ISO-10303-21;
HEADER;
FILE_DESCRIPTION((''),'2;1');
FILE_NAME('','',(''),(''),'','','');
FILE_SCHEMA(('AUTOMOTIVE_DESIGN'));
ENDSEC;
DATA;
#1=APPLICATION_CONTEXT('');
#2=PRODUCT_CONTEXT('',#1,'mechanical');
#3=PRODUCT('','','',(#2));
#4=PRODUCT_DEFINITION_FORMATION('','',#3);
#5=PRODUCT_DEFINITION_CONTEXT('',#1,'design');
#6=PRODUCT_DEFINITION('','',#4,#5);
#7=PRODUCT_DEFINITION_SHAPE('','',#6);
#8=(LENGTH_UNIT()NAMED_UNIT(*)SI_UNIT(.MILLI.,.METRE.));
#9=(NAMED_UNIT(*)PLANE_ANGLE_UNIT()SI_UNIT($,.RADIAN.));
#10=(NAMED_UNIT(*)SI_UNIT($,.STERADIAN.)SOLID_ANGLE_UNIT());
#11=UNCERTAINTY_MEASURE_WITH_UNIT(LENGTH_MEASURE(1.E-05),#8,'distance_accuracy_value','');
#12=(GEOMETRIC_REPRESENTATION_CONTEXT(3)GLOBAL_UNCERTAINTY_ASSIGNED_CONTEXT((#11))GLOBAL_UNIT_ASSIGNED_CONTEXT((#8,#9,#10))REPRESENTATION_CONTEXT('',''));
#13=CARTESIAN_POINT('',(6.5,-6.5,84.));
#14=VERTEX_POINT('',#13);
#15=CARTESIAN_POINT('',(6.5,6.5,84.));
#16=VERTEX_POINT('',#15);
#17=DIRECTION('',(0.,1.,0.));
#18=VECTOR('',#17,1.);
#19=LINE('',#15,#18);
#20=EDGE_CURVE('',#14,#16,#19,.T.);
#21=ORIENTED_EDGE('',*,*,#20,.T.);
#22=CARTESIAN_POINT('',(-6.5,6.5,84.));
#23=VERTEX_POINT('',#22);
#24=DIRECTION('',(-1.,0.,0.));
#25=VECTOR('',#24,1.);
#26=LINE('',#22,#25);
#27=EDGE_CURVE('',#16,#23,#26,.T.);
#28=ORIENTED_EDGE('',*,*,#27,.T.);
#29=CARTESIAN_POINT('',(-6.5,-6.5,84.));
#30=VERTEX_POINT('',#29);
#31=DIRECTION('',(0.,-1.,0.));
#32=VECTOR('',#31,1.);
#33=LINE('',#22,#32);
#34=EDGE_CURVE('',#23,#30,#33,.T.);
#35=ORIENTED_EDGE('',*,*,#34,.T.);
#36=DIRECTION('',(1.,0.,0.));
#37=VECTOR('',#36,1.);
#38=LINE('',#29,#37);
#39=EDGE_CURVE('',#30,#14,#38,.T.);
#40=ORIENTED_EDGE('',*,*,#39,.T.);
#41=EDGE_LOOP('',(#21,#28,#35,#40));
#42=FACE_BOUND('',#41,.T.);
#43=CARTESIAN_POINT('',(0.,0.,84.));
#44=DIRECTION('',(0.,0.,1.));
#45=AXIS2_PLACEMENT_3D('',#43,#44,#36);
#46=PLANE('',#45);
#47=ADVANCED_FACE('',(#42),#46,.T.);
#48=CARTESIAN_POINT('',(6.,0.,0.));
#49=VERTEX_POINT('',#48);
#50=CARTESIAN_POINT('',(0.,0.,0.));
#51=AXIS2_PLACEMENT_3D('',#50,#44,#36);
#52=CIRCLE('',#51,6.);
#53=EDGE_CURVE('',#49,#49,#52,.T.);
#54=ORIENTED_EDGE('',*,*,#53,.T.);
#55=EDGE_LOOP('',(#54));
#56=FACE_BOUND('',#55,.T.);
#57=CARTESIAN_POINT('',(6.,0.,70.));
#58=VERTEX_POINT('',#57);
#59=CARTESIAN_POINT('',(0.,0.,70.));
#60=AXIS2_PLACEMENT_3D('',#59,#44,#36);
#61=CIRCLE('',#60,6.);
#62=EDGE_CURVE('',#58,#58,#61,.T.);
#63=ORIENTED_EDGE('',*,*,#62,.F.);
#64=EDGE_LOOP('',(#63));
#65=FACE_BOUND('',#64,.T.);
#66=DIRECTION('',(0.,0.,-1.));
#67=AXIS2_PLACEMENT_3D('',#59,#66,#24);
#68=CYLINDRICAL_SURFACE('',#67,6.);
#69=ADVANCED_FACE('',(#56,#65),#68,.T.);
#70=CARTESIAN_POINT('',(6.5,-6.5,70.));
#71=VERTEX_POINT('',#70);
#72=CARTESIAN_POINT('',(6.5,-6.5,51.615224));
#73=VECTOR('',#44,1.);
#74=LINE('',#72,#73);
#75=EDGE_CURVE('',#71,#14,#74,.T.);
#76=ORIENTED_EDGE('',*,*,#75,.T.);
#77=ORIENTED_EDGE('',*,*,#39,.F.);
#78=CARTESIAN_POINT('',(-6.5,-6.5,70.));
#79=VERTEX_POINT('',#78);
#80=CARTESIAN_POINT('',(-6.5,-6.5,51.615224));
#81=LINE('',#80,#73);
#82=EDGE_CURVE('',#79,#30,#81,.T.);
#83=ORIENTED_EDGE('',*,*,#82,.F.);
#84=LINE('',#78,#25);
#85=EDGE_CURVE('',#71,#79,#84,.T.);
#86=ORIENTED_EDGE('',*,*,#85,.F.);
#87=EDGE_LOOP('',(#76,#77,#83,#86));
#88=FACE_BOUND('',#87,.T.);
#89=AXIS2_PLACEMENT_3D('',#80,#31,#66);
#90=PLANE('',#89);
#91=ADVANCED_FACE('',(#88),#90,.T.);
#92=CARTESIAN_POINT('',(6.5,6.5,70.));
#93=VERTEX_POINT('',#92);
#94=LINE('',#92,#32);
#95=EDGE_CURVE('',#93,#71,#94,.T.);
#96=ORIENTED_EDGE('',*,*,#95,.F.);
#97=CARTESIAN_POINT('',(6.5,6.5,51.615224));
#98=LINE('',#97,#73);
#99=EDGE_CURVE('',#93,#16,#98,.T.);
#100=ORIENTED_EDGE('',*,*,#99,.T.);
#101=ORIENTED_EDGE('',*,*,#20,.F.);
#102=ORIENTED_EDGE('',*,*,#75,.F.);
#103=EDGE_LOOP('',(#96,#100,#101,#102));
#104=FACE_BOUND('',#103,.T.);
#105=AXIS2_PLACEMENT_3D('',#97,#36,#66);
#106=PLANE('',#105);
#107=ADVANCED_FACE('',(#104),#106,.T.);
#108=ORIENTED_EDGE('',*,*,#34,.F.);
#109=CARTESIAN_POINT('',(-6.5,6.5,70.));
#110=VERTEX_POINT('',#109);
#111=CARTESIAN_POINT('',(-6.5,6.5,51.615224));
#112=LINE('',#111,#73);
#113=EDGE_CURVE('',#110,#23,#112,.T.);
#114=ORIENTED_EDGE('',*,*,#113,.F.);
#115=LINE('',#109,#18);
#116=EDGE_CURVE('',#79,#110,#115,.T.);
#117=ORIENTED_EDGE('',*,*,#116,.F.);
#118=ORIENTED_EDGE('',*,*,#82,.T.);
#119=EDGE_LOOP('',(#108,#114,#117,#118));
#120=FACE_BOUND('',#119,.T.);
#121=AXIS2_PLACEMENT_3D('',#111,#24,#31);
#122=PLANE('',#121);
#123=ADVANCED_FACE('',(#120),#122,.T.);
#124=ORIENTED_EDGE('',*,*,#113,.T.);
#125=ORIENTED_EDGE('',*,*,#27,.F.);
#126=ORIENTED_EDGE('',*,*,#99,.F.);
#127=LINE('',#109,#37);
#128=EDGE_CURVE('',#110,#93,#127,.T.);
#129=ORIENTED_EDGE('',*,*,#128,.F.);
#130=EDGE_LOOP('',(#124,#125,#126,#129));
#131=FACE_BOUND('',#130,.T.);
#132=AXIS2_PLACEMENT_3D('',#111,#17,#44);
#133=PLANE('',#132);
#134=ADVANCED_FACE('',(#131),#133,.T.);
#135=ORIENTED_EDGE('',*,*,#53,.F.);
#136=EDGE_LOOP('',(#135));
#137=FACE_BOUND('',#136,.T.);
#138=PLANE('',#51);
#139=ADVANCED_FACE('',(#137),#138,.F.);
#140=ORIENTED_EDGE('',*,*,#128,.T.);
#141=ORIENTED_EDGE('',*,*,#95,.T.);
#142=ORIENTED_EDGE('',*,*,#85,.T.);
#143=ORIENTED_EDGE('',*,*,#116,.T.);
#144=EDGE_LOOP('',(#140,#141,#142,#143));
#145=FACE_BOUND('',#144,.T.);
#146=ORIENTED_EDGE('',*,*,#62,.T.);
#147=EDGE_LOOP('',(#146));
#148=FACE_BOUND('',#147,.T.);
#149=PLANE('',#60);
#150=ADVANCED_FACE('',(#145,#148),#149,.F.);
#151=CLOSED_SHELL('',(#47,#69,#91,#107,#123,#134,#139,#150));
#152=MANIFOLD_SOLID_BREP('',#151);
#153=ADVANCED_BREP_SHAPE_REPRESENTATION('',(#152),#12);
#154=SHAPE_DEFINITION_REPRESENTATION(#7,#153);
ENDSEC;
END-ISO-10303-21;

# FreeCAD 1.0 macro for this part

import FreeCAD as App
import Part
import Sketcher
Q = App.Units.Quantity

doc = App.newDocument("Part")
params = doc.addObject("Spreadsheet::Sheet", "Params")
for row, (alias, value) in enumerate([
    ("sketch1_diameter", "12 mm"),
    ("pad1_length", "70 mm"),
    ("sketch2_width", "13 mm"),
    ("pad2_length", "14 mm"),
], start=1):
    params.set(f"A{row}", alias)
    params.set(f"B{row}", "=" + value)
    params.setAlias(f"B{row}", alias)

body = doc.addObject("PartDesign::Body", "Body")

sketch1 = doc.addObject("Sketcher::SketchObject", "Sketch")
body.addObject(sketch1)
sketch1.AttachmentSupport = (doc.XY_Plane, [""])
sketch1.MapMode = "FlatFace"
sketch1.addGeometry(Part.Circle(App.Vector(0, 0, 0), App.Vector(0, 0, 1), 6), False)
sketch1.addConstraint(Sketcher.Constraint("Coincident", 0, 3, -1, 1))
sketch1.addConstraint(Sketcher.Constraint("Diameter", 0, Q("12 mm")))
sketch1.setExpression("Constraints[1]", "Params.sketch1_diameter")
pad1 = doc.addObject("PartDesign::Pad", "Pad")
body.addObject(pad1)
pad1.Profile = sketch1
pad1.setExpression("Length", "Params.pad1_length")

sketch2 = doc.addObject("Sketcher::SketchObject", "Sketch001")
body.addObject(sketch2)
sketch2.AttachmentSupport = (doc.XY_Plane, [""])
sketch2.MapMode = "FlatFace"
sketch2.AttachmentOffset = App.Placement(App.Vector(0, 0, 84), App.Rotation())
sketch2.addGeometry(Part.LineSegment(App.Vector(-6, 6, 0), App.Vector(-6, -6, 0)), False)
sketch2.addGeometry(Part.LineSegment(App.Vector(-6, -6, 0), App.Vector(6, -6, 0)), False)
sketch2.addGeometry(Part.LineSegment(App.Vector(6, -6, 0), App.Vector(6, 6, 0)), False)
sketch2.addGeometry(Part.LineSegment(App.Vector(6, 6, 0), App.Vector(-6, 6, 0)), False)
sketch2.addConstraint(Sketcher.Constraint("Coincident", 0, 2, 1, 1))
sketch2.addConstraint(Sketcher.Constraint("Coincident", 1, 2, 2, 1))
sketch2.addConstraint(Sketcher.Constraint("Coincident", 2, 2, 3, 1))
sketch2.addConstraint(Sketcher.Constraint("Coincident", 3, 2, 0, 1))
sketch2.addConstraint(Sketcher.Constraint("Vertical", 0))
sketch2.addConstraint(Sketcher.Constraint("Horizontal", 1))
sketch2.addConstraint(Sketcher.Constraint("Vertical", 2))
sketch2.addConstraint(Sketcher.Constraint("Horizontal", 3))
sketch2.addConstraint(Sketcher.Constraint("Symmetric", 0, 2, 2, 2, -1, 1))
sketch2.addConstraint(Sketcher.Constraint("Equal", 3, 0))
sketch2.addConstraint(Sketcher.Constraint("DistanceX", 1, 1, 1, 2, Q("13 mm")))
sketch2.setExpression("Constraints[10]", "Params.sketch2_width")
pad2 = doc.addObject("PartDesign::Pad", "Pad001")
body.addObject(pad2)
pad2.Profile = sketch2
pad2.setExpression("Length", "Params.pad2_length")
pad2.Reversed = True

doc.recompute()
